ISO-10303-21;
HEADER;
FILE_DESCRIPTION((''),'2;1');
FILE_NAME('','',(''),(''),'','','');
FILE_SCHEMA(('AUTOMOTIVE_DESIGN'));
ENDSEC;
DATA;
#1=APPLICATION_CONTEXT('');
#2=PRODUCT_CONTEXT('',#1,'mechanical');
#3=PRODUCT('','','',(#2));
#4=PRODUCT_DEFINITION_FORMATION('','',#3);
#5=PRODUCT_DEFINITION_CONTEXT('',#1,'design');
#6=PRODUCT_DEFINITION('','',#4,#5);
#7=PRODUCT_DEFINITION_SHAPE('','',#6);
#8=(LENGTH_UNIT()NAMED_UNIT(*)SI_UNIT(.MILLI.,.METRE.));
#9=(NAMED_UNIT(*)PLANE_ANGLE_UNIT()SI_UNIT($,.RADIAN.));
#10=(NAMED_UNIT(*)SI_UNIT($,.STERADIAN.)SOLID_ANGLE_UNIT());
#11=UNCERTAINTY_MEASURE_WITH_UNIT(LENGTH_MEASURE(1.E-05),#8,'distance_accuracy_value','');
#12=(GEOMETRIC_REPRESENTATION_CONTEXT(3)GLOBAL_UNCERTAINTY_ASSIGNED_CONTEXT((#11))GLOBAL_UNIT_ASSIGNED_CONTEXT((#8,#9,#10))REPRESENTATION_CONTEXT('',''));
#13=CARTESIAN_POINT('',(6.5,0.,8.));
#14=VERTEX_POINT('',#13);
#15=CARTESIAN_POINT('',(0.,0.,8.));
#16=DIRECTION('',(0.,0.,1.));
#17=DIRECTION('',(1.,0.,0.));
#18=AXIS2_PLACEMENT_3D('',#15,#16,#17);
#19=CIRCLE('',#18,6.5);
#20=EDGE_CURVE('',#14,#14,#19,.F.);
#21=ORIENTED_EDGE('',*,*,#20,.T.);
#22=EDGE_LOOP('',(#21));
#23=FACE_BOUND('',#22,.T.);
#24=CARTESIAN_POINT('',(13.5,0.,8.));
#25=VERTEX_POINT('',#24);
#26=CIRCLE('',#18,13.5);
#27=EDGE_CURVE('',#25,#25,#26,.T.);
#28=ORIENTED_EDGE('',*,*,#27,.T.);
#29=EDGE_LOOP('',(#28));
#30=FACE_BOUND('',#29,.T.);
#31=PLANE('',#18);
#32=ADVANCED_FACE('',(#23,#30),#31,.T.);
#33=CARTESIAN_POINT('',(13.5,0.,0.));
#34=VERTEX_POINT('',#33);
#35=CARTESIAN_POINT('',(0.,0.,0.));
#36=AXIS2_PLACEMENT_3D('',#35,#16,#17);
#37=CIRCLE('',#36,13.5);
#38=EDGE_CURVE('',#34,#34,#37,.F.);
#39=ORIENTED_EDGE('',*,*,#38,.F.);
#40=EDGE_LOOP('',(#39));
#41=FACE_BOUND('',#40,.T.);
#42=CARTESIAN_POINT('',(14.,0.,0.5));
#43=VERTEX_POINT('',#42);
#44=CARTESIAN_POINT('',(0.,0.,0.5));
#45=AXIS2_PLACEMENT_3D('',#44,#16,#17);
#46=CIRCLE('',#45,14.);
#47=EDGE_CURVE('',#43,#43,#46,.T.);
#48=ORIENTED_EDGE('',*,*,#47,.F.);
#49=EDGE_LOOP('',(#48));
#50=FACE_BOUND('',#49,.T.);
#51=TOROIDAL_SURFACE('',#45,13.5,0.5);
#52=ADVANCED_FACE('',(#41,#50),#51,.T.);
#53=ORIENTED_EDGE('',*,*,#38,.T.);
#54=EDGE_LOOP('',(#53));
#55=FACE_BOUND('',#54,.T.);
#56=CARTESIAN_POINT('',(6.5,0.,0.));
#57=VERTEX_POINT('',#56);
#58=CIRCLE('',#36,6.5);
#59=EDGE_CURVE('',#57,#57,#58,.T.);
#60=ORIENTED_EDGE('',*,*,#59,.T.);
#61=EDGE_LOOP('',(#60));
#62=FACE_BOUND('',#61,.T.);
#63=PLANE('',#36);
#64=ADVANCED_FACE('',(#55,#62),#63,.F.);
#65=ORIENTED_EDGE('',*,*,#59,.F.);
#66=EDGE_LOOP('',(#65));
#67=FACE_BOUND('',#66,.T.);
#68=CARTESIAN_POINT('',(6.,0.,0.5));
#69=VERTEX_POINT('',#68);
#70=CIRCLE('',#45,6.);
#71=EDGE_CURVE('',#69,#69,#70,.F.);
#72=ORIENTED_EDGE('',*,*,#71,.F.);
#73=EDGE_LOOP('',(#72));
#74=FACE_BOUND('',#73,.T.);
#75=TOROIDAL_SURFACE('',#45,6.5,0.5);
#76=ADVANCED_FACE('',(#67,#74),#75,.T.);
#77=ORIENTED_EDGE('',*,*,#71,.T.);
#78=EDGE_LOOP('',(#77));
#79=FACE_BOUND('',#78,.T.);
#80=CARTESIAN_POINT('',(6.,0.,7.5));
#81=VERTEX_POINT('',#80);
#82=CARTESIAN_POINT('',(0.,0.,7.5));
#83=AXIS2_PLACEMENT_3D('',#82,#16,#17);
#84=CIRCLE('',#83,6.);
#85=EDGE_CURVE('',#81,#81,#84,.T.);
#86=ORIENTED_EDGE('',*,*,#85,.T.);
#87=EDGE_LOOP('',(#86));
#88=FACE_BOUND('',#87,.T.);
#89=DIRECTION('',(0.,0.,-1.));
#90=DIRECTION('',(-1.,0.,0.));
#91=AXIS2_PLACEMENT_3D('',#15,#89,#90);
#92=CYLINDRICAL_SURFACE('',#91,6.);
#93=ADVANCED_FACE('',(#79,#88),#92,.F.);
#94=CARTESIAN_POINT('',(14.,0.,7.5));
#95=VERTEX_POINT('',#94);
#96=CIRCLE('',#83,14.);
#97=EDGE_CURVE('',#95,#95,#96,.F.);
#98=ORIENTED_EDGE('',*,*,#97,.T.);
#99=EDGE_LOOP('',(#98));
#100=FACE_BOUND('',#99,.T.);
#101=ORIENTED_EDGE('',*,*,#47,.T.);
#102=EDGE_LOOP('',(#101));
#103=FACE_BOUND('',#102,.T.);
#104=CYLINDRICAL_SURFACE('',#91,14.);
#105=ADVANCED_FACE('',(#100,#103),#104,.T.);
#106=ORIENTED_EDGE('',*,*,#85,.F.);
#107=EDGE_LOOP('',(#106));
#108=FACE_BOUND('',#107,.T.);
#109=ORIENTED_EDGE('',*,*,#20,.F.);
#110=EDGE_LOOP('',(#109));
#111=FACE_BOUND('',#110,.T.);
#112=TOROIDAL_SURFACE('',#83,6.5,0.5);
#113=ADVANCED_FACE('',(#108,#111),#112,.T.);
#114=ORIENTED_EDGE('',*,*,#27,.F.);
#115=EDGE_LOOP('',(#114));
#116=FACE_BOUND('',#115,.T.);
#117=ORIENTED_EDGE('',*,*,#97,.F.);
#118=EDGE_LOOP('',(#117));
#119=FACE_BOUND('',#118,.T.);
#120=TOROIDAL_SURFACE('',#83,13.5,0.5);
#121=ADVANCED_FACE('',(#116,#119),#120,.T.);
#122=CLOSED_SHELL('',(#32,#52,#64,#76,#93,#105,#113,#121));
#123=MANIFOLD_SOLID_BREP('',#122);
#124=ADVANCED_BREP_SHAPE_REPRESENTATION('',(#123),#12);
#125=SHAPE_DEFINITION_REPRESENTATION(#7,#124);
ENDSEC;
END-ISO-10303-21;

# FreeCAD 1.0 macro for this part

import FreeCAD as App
import Part
import Sketcher
from FreeCAD import Vector


def edges_at(feature, points):
    """Names of the edges that pass closest to the given points."""
    edges = feature.Shape.Edges
    near = lambda p: min(range(len(edges)), key=lambda i: edges[i].distToShape(Part.Vertex(*p))[0])
    return sorted({f"Edge{near(p) + 1}" for p in points})

doc = App.newDocument("Part")
body = doc.addObject("PartDesign::Body", "Body")

sketch1 = body.newObject("Sketcher::SketchObject", "Sketch")
sketch1.AttachmentSupport = (doc.getObject("XY_Plane"), [""])
sketch1.MapMode = "FlatFace"
sketch1.addGeometry([
    Part.Circle(Vector(0, 0, 0), Vector(0, 0, 1), 14),
    Part.Circle(Vector(0, 0, 0), Vector(0, 0, 1), 6),
], False)
sketch1.addConstraint([
    Sketcher.Constraint("Coincident", 0, 3, -1, 1),
    Sketcher.Constraint("Coincident", 1, 3, -1, 1),
    Sketcher.Constraint("Diameter", 0, 28.0),
    Sketcher.Constraint("Diameter", 1, 12.0),
])
pad1 = body.newObject("PartDesign::Pad", "Pad")
pad1.Profile = sketch1
pad1.Length = 8
doc.recompute()

fillet = body.newObject("PartDesign::Fillet", "Fillet")
fillet.Base = (pad1, edges_at(pad1, [
    (-14, 0, 0),
    (-14, 0, 8),
    (-6, 0, 0),
    (-6, 0, 8),
]))
fillet.Radius = 0.5

doc.recompute()
